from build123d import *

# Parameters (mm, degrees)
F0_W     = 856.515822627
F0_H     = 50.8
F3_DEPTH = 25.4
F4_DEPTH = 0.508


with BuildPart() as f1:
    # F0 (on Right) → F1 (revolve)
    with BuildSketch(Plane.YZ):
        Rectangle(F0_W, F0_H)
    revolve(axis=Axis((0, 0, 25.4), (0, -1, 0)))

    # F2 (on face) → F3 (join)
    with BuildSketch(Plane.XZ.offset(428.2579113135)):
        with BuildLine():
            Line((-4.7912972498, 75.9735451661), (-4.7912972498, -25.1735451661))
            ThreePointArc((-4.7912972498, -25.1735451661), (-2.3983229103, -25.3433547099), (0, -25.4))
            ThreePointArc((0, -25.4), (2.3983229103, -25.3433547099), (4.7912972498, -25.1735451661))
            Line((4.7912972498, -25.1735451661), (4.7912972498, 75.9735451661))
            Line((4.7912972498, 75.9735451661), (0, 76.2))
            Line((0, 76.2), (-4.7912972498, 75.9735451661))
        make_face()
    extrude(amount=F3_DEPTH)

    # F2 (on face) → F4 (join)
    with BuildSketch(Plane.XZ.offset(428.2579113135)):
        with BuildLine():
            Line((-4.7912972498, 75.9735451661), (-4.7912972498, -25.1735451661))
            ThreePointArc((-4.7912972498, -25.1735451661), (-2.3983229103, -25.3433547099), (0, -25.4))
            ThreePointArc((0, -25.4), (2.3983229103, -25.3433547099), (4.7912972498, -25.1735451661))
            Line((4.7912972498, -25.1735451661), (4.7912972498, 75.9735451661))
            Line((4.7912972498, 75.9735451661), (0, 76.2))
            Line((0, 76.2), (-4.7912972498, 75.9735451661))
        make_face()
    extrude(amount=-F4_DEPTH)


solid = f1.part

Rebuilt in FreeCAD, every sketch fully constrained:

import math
import FreeCAD as App
import Part
import Sketcher
from FreeCAD import Vector
Q = App.Units.Quantity

doc = App.newDocument("Part")
params = doc.addObject("Spreadsheet::Sheet", "Params")
for row, (alias, value) in enumerate([
    ("sketch1_height", "2 in"),
    ("revolution_angle", "360 deg"),
    ("sketch2_radius", "2 in"),
    ("pad1_length", "1 in"),
    ("sketch3_radius", "2 in"),
    ("pad2_length", "0.02 in"),
], start=1):
    params.set(f"A{row}", alias)
    params.set(f"B{row}", "=" + value)
    params.setAlias(f"B{row}", alias)

body = doc.addObject("PartDesign::Body", "Body")

# Sketch on YZ plane
sketch1 = doc.addObject("Sketcher::SketchObject", "Sketch")
body.addObject(sketch1)
sketch1.AttachmentSupport = (doc.YZ_Plane, [""])
sketch1.MapMode = "FlatFace"
sketch1.addGeometry([
    Part.LineSegment(Vector(-428, 25, 0), Vector(-428, -25, 0)),
    Part.LineSegment(Vector(-428, -25, 0), Vector(428, -25, 0)),
    Part.LineSegment(Vector(428, -25, 0), Vector(428, 25, 0)),
    Part.LineSegment(Vector(428, 25, 0), Vector(-428, 25, 0)),
], False)
sketch1.addGeometry(Part.LineSegment(Vector(428, 25, 0), Vector(-428, 25, 0)), True)  # axis
sketch1.addConstraint([
    Sketcher.Constraint("Coincident", 0, 2, 1, 1),
    Sketcher.Constraint("Coincident", 1, 2, 2, 1),
    Sketcher.Constraint("Coincident", 2, 2, 3, 1),
    Sketcher.Constraint("Coincident", 3, 2, 0, 1),
    Sketcher.Constraint("Vertical", 0),
    Sketcher.Constraint("Horizontal", 1),
    Sketcher.Constraint("Vertical", 2),
    Sketcher.Constraint("Horizontal", 3),
    Sketcher.Constraint("Horizontal", 4),
    Sketcher.Constraint("Coincident", 4, 1, 2, 2),
    Sketcher.Constraint("Symmetric", 0, 2, 2, 2, -1, 1),
    Sketcher.Constraint("Vertical", 0, 2, 4, 2),
    Sketcher.Constraint("DistanceY", 0, 2, 0, 1, Q("2 in")),
    Sketcher.Constraint("DistanceX", 1, 1, 1, 2, Q("856.515823 mm")),
])
sketch1.setExpression("Constraints[12]", "Params.sketch1_height")
revolution = doc.addObject("PartDesign::Revolution", "Revolution")
body.addObject(revolution)
revolution.Profile = sketch1
revolution.ReferenceAxis = (sketch1, ["Axis0"])
revolution.setExpression("Angle", "Params.revolution_angle")

# Sketch on XZ plane
sketch2 = doc.addObject("Sketcher::SketchObject", "Sketch001")
body.addObject(sketch2)
sketch2.AttachmentSupport = (doc.XZ_Plane, [""])
sketch2.MapMode = "FlatFace"
sketch2.AttachmentOffset = App.Placement(Vector(0, 0, 428.257911), App.Rotation())
sketch2.addGeometry([
    Part.LineSegment(Vector(-4.8, 76, 0), Vector(-4.8, -25.2, 0)),  # 0
    Part.ArcOfCircle(Part.Circle(Vector(0, 25.4, 0), Vector(0, 0, 1), 50.8), math.radians(-95.41), math.radians(-90)),  # 1
    Part.ArcOfCircle(Part.Circle(Vector(0, 25.4, 0), Vector(0, 0, 1), 50.8), math.radians(-90), math.radians(-84.59)),  # 2
    Part.LineSegment(Vector(4.8, -25.2, 0), Vector(4.8, 76, 0)),  # 3
    Part.LineSegment(Vector(4.8, 76, 0), Vector(0, 76.2, 0)),  # 4
    Part.LineSegment(Vector(0, 76.2, 0), Vector(-4.8, 76, 0)),  # 5
], False)
sketch2.addConstraint([
    Sketcher.Constraint("Coincident", 0, 2, 1, 1),
    Sketcher.Constraint("Tangent", 1, 2, 2, 1),
    Sketcher.Constraint("Coincident", 2, 2, 3, 1),
    Sketcher.Constraint("Coincident", 3, 2, 4, 1),
    Sketcher.Constraint("Coincident", 4, 2, 5, 1),
    Sketcher.Constraint("Coincident", 5, 2, 0, 1),
    Sketcher.Constraint("Vertical", 0),
    Sketcher.Constraint("Vertical", 3),
    Sketcher.Constraint("Equal", 1, 2),
    Sketcher.Constraint("Symmetric", 0, 2, 2, 2, -2),
    Sketcher.Constraint("PointOnObject", 1, 2, -2),
    Sketcher.Constraint("PointOnObject", 4, 2, -2),
    Sketcher.Constraint("Horizontal", 3, 2, 5, 2),
    Sketcher.Constraint("Radius", 1, Q("2 in")),
    Sketcher.Constraint("DistanceY", -1, 1, 1, 3, Q("1 in")),
    Sketcher.Constraint("DistanceY", -1, 1, 4, 2, Q("3 in")),
    Sketcher.Constraint("DistanceY", 0, 2, 0, 1, Q("101.14709 mm")),
    Sketcher.Constraint("Distance", 4, Q("4.796646 mm")),
])
sketch2.setExpression("Constraints[13]", "Params.sketch2_radius")
pad1 = doc.addObject("PartDesign::Pad", "Pad")
body.addObject(pad1)
pad1.Profile = sketch2
pad1.setExpression("Length", "Params.pad1_length")

# Sketch on XZ plane
sketch3 = doc.addObject("Sketcher::SketchObject", "Sketch002")
body.addObject(sketch3)
sketch3.AttachmentSupport = (doc.XZ_Plane, [""])
sketch3.MapMode = "FlatFace"
sketch3.AttachmentOffset = App.Placement(Vector(0, 0, 428.257911), App.Rotation())
sketch3.addGeometry([
    Part.LineSegment(Vector(-4.8, 76, 0), Vector(-4.8, -25.2, 0)),  # 0
    Part.ArcOfCircle(Part.Circle(Vector(0, 25.4, 0), Vector(0, 0, 1), 50.8), math.radians(-95.41), math.radians(-90)),  # 1
    Part.ArcOfCircle(Part.Circle(Vector(0, 25.4, 0), Vector(0, 0, 1), 50.8), math.radians(-90), math.radians(-84.59)),  # 2
    Part.LineSegment(Vector(4.8, -25.2, 0), Vector(4.8, 76, 0)),  # 3
    Part.LineSegment(Vector(4.8, 76, 0), Vector(0, 76.2, 0)),  # 4
    Part.LineSegment(Vector(0, 76.2, 0), Vector(-4.8, 76, 0)),  # 5
], False)
sketch3.addConstraint([
    Sketcher.Constraint("Coincident", 0, 2, 1, 1),
    Sketcher.Constraint("Tangent", 1, 2, 2, 1),
    Sketcher.Constraint("Coincident", 2, 2, 3, 1),
    Sketcher.Constraint("Coincident", 3, 2, 4, 1),
    Sketcher.Constraint("Coincident", 4, 2, 5, 1),
    Sketcher.Constraint("Coincident", 5, 2, 0, 1),
    Sketcher.Constraint("Vertical", 0),
    Sketcher.Constraint("Vertical", 3),
    Sketcher.Constraint("Equal", 1, 2),
    Sketcher.Constraint("Symmetric", 0, 2, 2, 2, -2),
    Sketcher.Constraint("PointOnObject", 1, 2, -2),
    Sketcher.Constraint("PointOnObject", 4, 2, -2),
    Sketcher.Constraint("Horizontal", 3, 2, 5, 2),
    Sketcher.Constraint("Radius", 1, Q("2 in")),
    Sketcher.Constraint("DistanceY", -1, 1, 1, 3, Q("1 in")),
    Sketcher.Constraint("DistanceY", -1, 1, 4, 2, Q("3 in")),
    Sketcher.Constraint("DistanceY", 0, 2, 0, 1, Q("101.14709 mm")),
    Sketcher.Constraint("Distance", 4, Q("4.796646 mm")),
])
sketch3.setExpression("Constraints[13]", "Params.sketch3_radius")
pad2 = doc.addObject("PartDesign::Pad", "Pad001")
body.addObject(pad2)
pad2.Profile = sketch3
pad2.setExpression("Length", "Params.pad2_length")
pad2.Reversed = True

doc.recompute()
